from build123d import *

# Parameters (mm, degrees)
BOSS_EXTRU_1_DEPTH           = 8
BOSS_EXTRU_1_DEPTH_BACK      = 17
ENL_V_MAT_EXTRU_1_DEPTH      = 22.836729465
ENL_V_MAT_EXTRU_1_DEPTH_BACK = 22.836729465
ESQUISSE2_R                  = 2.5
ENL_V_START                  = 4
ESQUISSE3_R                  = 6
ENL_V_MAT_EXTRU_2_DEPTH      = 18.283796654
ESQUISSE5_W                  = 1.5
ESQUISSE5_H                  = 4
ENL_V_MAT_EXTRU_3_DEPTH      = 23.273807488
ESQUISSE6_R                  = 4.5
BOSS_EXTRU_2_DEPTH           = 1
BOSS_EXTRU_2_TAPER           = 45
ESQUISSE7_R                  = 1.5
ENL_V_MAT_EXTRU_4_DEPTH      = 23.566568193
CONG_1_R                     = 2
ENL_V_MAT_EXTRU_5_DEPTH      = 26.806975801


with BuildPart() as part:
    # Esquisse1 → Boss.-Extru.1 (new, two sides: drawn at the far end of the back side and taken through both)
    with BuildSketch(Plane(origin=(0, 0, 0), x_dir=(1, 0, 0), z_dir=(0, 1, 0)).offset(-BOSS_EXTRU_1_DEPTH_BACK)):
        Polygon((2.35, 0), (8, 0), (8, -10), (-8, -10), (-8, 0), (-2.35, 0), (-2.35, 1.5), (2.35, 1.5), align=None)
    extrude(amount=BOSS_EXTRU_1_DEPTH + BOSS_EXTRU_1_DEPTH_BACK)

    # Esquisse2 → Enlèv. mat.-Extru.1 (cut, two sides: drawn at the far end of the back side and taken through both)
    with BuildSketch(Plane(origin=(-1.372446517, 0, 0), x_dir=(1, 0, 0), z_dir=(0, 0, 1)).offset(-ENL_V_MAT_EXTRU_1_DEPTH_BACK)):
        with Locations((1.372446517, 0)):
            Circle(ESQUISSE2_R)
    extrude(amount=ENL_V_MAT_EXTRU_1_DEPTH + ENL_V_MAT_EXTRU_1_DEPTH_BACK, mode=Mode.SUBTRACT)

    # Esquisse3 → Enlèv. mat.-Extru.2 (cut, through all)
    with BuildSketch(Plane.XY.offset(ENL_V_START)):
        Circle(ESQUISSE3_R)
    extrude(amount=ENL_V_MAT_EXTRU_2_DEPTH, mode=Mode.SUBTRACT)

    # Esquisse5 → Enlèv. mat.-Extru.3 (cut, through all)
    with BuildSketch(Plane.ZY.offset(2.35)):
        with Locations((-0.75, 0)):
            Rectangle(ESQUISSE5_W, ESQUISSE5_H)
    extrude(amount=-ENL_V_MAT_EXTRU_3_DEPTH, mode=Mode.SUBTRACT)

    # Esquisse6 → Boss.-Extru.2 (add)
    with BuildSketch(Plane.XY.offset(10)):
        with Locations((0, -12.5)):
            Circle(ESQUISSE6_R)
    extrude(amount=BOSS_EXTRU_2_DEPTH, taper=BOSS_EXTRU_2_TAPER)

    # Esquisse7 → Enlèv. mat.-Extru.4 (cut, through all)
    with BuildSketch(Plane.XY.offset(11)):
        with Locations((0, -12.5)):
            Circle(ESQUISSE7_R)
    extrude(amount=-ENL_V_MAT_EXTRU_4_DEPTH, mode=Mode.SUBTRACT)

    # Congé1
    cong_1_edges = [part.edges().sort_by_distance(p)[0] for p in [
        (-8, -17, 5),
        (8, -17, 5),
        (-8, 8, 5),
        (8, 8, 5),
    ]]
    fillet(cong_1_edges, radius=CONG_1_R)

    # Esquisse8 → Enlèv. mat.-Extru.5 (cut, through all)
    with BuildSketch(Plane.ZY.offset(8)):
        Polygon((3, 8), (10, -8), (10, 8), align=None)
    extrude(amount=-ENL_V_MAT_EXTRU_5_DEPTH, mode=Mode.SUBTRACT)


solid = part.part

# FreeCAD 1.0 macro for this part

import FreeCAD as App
import Part
import Sketcher


def edges_at(feature, points):
    """Names of the edges that pass closest to the given points."""
    edges = feature.Shape.Edges
    near = lambda p: min(range(len(edges)), key=lambda i: edges[i].distToShape(Part.Vertex(*p))[0])
    return sorted({f"Edge{near(p) + 1}" for p in points})

doc = App.newDocument("Part")
body = doc.addObject("PartDesign::Body", "Body")

sketch1 = body.newObject("Sketcher::SketchObject", "Sketch")
sketch1.AttachmentSupport = (doc.getObject("XZ_Plane"), [""])
sketch1.MapMode = "FlatFace"
sketch1.addGeometry([
    Part.LineSegment(App.Vector(8, 0, 0), App.Vector(2.4, 0, 0)),
    Part.LineSegment(App.Vector(2.4, 0, 0), App.Vector(2.4, -1.5, 0)),
    Part.LineSegment(App.Vector(2.4, -1.5, 0), App.Vector(-2.4, -1.5, 0)),
    Part.LineSegment(App.Vector(-2.4, -1.5, 0), App.Vector(-2.4, 0, 0)),
    Part.LineSegment(App.Vector(-2.4, 0, 0), App.Vector(-8, 0, 0)),
    Part.LineSegment(App.Vector(-8, 0, 0), App.Vector(-8, 10, 0)),
    Part.LineSegment(App.Vector(-8, 10, 0), App.Vector(8, 10, 0)),
    Part.LineSegment(App.Vector(8, 10, 0), App.Vector(8, 0, 0)),
], False)
sketch1.addConstraint([
    Sketcher.Constraint("Coincident", 0, 2, 1, 1),
    Sketcher.Constraint("Coincident", 1, 2, 2, 1),
    Sketcher.Constraint("Coincident", 2, 2, 3, 1),
    Sketcher.Constraint("Coincident", 3, 2, 4, 1),
    Sketcher.Constraint("Coincident", 4, 2, 5, 1),
    Sketcher.Constraint("Coincident", 5, 2, 6, 1),
    Sketcher.Constraint("Coincident", 6, 2, 7, 1),
    Sketcher.Constraint("Coincident", 7, 2, 0, 1),
    Sketcher.Constraint("Horizontal", 0),
    Sketcher.Constraint("Vertical", 1),
    Sketcher.Constraint("Horizontal", 2),
    Sketcher.Constraint("Vertical", 3),
    Sketcher.Constraint("Horizontal", 4),
    Sketcher.Constraint("Vertical", 5),
    Sketcher.Constraint("Horizontal", 6),
    Sketcher.Constraint("Vertical", 7),
    Sketcher.Constraint("Symmetric", 0, 2, 3, 2, -1, 1),
    Sketcher.Constraint("Symmetric", 4, 2, 7, 2, -2),
    Sketcher.Constraint("DistanceX", 6, 1, 6, 2, 16.0),
    Sketcher.Constraint("DistanceY", 5, 1, 5, 2, 10.0),
    Sketcher.Constraint("DistanceX", 2, 2, 2, 1, 4.7),
    Sketcher.Constraint("DistanceY", 1, 2, 1, 1, 1.5),
])
pad1 = body.newObject("PartDesign::Pad", "Pad")
pad1.Profile = sketch1
pad1.Type = "TwoLengths"
pad1.Length = 8
pad1.Length2 = 17
pad1.Reversed = True

sketch2 = body.newObject("Sketcher::SketchObject", "Sketch001")
sketch2.AttachmentSupport = (doc.getObject("XY_Plane"), [""])
sketch2.MapMode = "FlatFace"
sketch2.addGeometry(Part.Circle(App.Vector(0, 0, 0), App.Vector(0, 0, 1), 2.5), False)
sketch2.addConstraint([
    Sketcher.Constraint("Coincident", 0, 3, -1, 1),
    Sketcher.Constraint("Diameter", 0, 5.0),
])
pocket1 = body.newObject("PartDesign::Pocket", "Pocket")
pocket1.Profile = sketch2
pocket1.Type = "ThroughAll"
pocket1.Midplane = True

sketch3 = body.newObject("Sketcher::SketchObject", "Sketch002")
sketch3.AttachmentSupport = (doc.getObject("XY_Plane"), [""])
sketch3.MapMode = "FlatFace"
sketch3.AttachmentOffset = App.Placement(App.Vector(0, 0, 4), App.Rotation())
sketch3.addGeometry(Part.Circle(App.Vector(0, 0, 0), App.Vector(0, 0, 1), 6), False)
sketch3.addConstraint([
    Sketcher.Constraint("Coincident", 0, 3, -1, 1),
    Sketcher.Constraint("Diameter", 0, 12.0),
])
pocket2 = body.newObject("PartDesign::Pocket", "Pocket001")
pocket2.Profile = sketch3
pocket2.Type = "ThroughAll"
pocket2.Reversed = True

sketch4 = body.newObject("Sketcher::SketchObject", "Sketch003")
sketch4.AttachmentSupport = (doc.getObject("YZ_Plane"), [""])
sketch4.MapMode = "FlatFace"
sketch4.AttachmentOffset = App.Placement(App.Vector(0, 0, -2.35), App.Rotation())
sketch4.addGeometry([
    Part.LineSegment(App.Vector(2, -1.5, 0), App.Vector(-2, -1.5, 0)),
    Part.LineSegment(App.Vector(-2, -1.5, 0), App.Vector(-2, 0, 0)),
    Part.LineSegment(App.Vector(-2, 0, 0), App.Vector(2, 0, 0)),
    Part.LineSegment(App.Vector(2, 0, 0), App.Vector(2, -1.5, 0)),
], False)
sketch4.addConstraint([
    Sketcher.Constraint("Coincident", 0, 2, 1, 1),
    Sketcher.Constraint("Coincident", 1, 2, 2, 1),
    Sketcher.Constraint("Coincident", 2, 2, 3, 1),
    Sketcher.Constraint("Coincident", 3, 2, 0, 1),
    Sketcher.Constraint("Horizontal", 0),
    Sketcher.Constraint("Vertical", 1),
    Sketcher.Constraint("Horizontal", 2),
    Sketcher.Constraint("Vertical", 3),
    Sketcher.Constraint("Symmetric", 1, 2, 2, 2, -1, 1),
    Sketcher.Constraint("DistanceX", 0, 2, 0, 1, 4.0),
    Sketcher.Constraint("DistanceY", 1, 1, 1, 2, 1.5),
])
pocket3 = body.newObject("PartDesign::Pocket", "Pocket002")
pocket3.Profile = sketch4
pocket3.Type = "ThroughAll"
pocket3.Reversed = True

sketch5 = body.newObject("Sketcher::SketchObject", "Sketch004")
sketch5.AttachmentSupport = (doc.getObject("XY_Plane"), [""])
sketch5.MapMode = "FlatFace"
sketch5.AttachmentOffset = App.Placement(App.Vector(0, 0, 10), App.Rotation())
sketch5.addGeometry(Part.Circle(App.Vector(0, -12.5, 0), App.Vector(0, 0, 1), 4.5), False)
sketch5.addConstraint([
    Sketcher.Constraint("PointOnObject", 0, 3, -2),
    Sketcher.Constraint("Diameter", 0, 9.0),
    Sketcher.Constraint("DistanceY", 0, 3, -1, 1, 12.5),
])
pad2 = body.newObject("PartDesign::Pad", "Pad001")
pad2.Profile = sketch5
pad2.Length = 1
pad2.TaperAngle = -45

sketch6 = body.newObject("Sketcher::SketchObject", "Sketch005")
sketch6.AttachmentSupport = (doc.getObject("XY_Plane"), [""])
sketch6.MapMode = "FlatFace"
sketch6.AttachmentOffset = App.Placement(App.Vector(0, 0, 11), App.Rotation())
sketch6.addGeometry(Part.Circle(App.Vector(0, -12.5, 0), App.Vector(0, 0, 1), 1.5), False)
sketch6.addConstraint([
    Sketcher.Constraint("PointOnObject", 0, 3, -2),
    Sketcher.Constraint("Diameter", 0, 3.0),
    Sketcher.Constraint("DistanceY", 0, 3, -1, 1, 12.5),
])
pocket4 = body.newObject("PartDesign::Pocket", "Pocket003")
pocket4.Profile = sketch6
pocket4.Type = "ThroughAll"
doc.recompute()

fillet = body.newObject("PartDesign::Fillet", "Fillet")
fillet.Base = (pocket4, edges_at(pocket4, [
    (-8, -17, 5),
    (8, -17, 5),
    (-8, 8, 5),
    (8, 8, 5),
]))
fillet.Radius = 2

sketch7 = body.newObject("Sketcher::SketchObject", "Sketch006")
sketch7.AttachmentSupport = (doc.getObject("YZ_Plane"), [""])
sketch7.MapMode = "FlatFace"
sketch7.AttachmentOffset = App.Placement(App.Vector(0, 0, -8), App.Rotation())
sketch7.addGeometry([
    Part.LineSegment(App.Vector(8, 3, 0), App.Vector(-8, 10, 0)),
    Part.LineSegment(App.Vector(-8, 10, 0), App.Vector(8, 10, 0)),
    Part.LineSegment(App.Vector(8, 10, 0), App.Vector(8, 3, 0)),
], False)
sketch7.addConstraint([
    Sketcher.Constraint("Coincident", 0, 2, 1, 1),
    Sketcher.Constraint("Coincident", 1, 2, 2, 1),
    Sketcher.Constraint("Coincident", 2, 2, 0, 1),
    Sketcher.Constraint("Horizontal", 1),
    Sketcher.Constraint("Vertical", 2),
    Sketcher.Constraint("DistanceX", 1, 1, 1, 2, 16.0),
    Sketcher.Constraint("DistanceY", 2, 2, 2, 1, 7.0),
    Sketcher.Constraint("DistanceX", 0, 2, -1, 1, 8.0),
    Sketcher.Constraint("DistanceY", -1, 1, 0, 2, 10.0),
])
pocket5 = body.newObject("PartDesign::Pocket", "Pocket004")
pocket5.Profile = sketch7
pocket5.Type = "ThroughAll"
pocket5.Reversed = True

doc.recompute()
